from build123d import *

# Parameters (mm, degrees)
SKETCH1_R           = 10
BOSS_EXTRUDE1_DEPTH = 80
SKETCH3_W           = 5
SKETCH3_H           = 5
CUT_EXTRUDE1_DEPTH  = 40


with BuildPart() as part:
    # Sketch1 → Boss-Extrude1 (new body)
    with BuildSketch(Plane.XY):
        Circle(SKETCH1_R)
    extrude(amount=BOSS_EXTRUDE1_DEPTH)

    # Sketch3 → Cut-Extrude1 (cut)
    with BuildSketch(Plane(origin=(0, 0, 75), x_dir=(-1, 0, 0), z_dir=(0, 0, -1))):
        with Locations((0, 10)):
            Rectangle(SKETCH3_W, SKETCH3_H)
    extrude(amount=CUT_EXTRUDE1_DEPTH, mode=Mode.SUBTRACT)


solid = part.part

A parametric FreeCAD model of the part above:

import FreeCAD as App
import Part
import Sketcher
Q = App.Units.Quantity


def add_polygon(sketch, points):
    """Adds a closed chain of lines whose ends are joined by coincident constraints."""
    first, n = sketch.GeometryCount, len(points)
    for a, b in zip(points, points[1:] + points[:1]):
        sketch.addGeometry(Part.LineSegment(App.Vector(*a, 0), App.Vector(*b, 0)), False)
    for i in range(n):
        sketch.addConstraint(Sketcher.Constraint("Coincident", first + i, 2, first + (i + 1) % n, 1))

doc = App.newDocument("Part")
body = doc.addObject("PartDesign::Body", "Body")

# Sketch on XY plane
sketch1 = body.newObject("Sketcher::SketchObject", "Sketch")
sketch1.AttachmentSupport = (doc.getObject("XY_Plane"), [""])
sketch1.MapMode = "FlatFace"
sketch1.addGeometry(Part.Circle(App.Vector(0, 0, 0), App.Vector(0, 0, 1), 10), False)
sketch1.addConstraint(Sketcher.Constraint("Coincident", 0, 3, -1, 1))
sketch1.addConstraint(Sketcher.Constraint("Diameter", 0, Q("20 mm")))
pad1 = body.newObject("PartDesign::Pad", "Pad")
pad1.Profile = sketch1
pad1.Length = 80

# Sketch on XY plane
sketch2 = body.newObject("Sketcher::SketchObject", "Sketch001")
sketch2.AttachmentSupport = (doc.getObject("XY_Plane"), [""])
sketch2.MapMode = "FlatFace"
sketch2.AttachmentOffset = App.Placement(App.Vector(0, 0, 75), App.Rotation())
add_polygon(sketch2, [(2, 12), (2, 8), (-2, 8), (-2, 12)])  # lines 0-3
sketch2.addConstraint(Sketcher.Constraint("Vertical", 0))
sketch2.addConstraint(Sketcher.Constraint("Horizontal", 1))
sketch2.addConstraint(Sketcher.Constraint("Vertical", 2))
sketch2.addConstraint(Sketcher.Constraint("Horizontal", 3))
sketch2.addConstraint(Sketcher.Constraint("Equal", 3, 0))
sketch2.addConstraint(Sketcher.Constraint("DistanceX", 1, 2, 1, 1, Q("5 mm")))
sketch2.addConstraint(Sketcher.Constraint("DistanceX", -1, 1, 0, 2, Q("2.5 mm")))
sketch2.addConstraint(Sketcher.Constraint("DistanceY", -1, 1, 0, 2, Q("7.5 mm")))
pocket1 = body.newObject("PartDesign::Pocket", "Pocket")
pocket1.Profile = sketch2
pocket1.Length = 40

doc.recompute()
